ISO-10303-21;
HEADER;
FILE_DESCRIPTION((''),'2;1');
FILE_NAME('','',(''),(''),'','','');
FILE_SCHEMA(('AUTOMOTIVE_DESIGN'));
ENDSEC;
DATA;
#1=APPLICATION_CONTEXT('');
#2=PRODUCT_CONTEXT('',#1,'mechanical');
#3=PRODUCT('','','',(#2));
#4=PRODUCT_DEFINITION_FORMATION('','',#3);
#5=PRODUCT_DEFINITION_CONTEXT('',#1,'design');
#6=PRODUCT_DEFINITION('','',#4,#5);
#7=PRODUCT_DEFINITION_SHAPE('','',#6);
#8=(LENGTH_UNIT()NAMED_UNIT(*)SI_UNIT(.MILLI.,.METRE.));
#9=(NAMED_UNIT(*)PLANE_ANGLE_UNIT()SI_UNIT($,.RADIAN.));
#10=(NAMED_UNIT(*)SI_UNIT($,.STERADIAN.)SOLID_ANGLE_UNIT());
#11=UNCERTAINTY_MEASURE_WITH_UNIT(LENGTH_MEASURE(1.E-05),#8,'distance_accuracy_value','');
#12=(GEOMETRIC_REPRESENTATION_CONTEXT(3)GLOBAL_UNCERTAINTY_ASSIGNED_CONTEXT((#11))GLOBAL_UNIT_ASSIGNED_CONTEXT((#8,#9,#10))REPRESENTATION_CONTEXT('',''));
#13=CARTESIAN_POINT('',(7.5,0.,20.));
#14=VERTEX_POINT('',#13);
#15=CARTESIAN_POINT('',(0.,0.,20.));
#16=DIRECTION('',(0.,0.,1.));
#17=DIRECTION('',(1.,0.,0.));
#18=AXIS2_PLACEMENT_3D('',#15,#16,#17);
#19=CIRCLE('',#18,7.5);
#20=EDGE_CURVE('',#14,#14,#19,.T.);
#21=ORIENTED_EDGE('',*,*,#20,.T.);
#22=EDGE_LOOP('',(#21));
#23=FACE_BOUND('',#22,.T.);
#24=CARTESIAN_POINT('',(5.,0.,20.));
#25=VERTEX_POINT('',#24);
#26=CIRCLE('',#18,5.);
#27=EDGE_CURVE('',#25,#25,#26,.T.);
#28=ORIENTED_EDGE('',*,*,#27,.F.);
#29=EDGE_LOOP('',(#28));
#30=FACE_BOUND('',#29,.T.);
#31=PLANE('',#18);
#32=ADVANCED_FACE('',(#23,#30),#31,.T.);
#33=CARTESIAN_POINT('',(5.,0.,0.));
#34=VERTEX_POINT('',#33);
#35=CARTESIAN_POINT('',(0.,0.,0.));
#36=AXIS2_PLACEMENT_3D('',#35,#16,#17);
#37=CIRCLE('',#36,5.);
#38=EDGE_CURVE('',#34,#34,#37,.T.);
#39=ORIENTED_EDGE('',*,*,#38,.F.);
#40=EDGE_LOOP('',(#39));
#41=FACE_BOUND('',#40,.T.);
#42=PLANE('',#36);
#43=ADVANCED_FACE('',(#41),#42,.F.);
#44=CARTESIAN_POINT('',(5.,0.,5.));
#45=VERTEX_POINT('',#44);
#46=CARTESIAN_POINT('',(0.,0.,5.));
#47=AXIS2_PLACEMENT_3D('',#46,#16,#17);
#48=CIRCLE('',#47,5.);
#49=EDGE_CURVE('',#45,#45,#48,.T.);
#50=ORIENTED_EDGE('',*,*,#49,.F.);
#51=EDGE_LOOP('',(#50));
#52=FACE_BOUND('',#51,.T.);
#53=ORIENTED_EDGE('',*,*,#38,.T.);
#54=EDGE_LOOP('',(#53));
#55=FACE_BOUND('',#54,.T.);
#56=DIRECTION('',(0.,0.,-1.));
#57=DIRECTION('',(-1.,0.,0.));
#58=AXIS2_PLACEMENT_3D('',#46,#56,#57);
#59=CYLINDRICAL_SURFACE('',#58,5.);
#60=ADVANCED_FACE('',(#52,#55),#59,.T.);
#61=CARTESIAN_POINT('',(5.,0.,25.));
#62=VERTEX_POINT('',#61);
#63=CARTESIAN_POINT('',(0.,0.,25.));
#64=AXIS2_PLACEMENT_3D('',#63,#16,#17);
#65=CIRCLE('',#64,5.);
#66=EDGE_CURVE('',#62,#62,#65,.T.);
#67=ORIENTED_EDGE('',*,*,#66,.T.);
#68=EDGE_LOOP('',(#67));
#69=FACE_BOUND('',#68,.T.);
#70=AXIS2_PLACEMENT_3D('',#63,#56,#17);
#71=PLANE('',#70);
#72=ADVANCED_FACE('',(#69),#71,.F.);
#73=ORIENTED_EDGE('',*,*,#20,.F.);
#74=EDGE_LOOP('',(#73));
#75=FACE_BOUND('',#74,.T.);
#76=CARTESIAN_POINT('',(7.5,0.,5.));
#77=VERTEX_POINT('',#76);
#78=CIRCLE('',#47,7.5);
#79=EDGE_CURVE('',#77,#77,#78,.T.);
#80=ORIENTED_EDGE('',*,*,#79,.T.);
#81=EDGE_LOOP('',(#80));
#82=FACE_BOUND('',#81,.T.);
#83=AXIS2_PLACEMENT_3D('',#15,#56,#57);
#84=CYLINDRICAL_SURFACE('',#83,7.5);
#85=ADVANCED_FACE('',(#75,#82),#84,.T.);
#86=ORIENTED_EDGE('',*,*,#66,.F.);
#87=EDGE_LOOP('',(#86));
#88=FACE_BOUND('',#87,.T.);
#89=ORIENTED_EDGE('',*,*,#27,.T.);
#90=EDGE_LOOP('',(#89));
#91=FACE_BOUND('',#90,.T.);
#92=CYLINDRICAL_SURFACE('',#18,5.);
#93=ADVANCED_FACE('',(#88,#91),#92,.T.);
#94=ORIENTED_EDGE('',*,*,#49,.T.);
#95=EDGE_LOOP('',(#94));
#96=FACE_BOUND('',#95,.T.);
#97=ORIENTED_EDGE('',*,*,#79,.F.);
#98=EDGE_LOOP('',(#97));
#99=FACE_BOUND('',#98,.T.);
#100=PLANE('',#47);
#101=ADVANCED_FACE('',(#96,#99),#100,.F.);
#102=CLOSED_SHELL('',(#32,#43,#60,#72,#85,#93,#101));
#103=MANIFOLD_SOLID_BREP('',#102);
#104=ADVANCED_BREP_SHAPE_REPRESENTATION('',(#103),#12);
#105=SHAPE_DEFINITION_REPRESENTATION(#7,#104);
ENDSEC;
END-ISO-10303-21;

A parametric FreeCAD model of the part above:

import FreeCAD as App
import Part
import Sketcher

V = App.Vector

doc = App.newDocument("Part")
body = doc.addObject("PartDesign::Body", "Body")

# Sketch on XY plane
sketch1 = body.newObject("Sketcher::SketchObject", "Sketch")
sketch1.AttachmentSupport = (doc.getObject("XY_Plane"), [""])
sketch1.MapMode = "FlatFace"
sketch1.addGeometry(Part.Circle(V(0, 0, 0), V(0, 0, 1), 5), False)
sketch1.addConstraint([
    Sketcher.Constraint("Coincident", 0, 3, -1, 1),
    Sketcher.Constraint("Diameter", 0, 10.0),
])
pad1 = body.newObject("PartDesign::Pad", "Pad")
pad1.Profile = sketch1
pad1.Length = 5

# Sketch on XY plane
sketch2 = body.newObject("Sketcher::SketchObject", "Sketch001")
sketch2.AttachmentSupport = (doc.getObject("XY_Plane"), [""])
sketch2.MapMode = "FlatFace"
sketch2.AttachmentOffset = App.Placement(V(0, 0, 5), App.Rotation())
sketch2.addGeometry(Part.Circle(V(0, 0, 0), V(0, 0, 1), 8), False)
sketch2.addConstraint([
    Sketcher.Constraint("Coincident", 0, 3, -1, 1),
    Sketcher.Constraint("Diameter", 0, 15.0),
])
pad2 = body.newObject("PartDesign::Pad", "Pad001")
pad2.Profile = sketch2
pad2.Length = 15
doc.recompute()

datumplane = body.newObject("PartDesign::Plane", "DatumPlane")
datumplane.AttachmentSupport = (doc.getObject("XY_Plane"), [""])
datumplane.MapMode = "FlatFace"
datumplane.AttachmentOffset = App.Placement(V(0, 0, 12.5), App.Rotation())
mirrored = body.newObject("PartDesign::Mirrored", "Mirrored")
mirrored.Originals = [pad1]
mirrored.MirrorPlane = (datumplane, [""])
body.Tip = mirrored

doc.recompute()
